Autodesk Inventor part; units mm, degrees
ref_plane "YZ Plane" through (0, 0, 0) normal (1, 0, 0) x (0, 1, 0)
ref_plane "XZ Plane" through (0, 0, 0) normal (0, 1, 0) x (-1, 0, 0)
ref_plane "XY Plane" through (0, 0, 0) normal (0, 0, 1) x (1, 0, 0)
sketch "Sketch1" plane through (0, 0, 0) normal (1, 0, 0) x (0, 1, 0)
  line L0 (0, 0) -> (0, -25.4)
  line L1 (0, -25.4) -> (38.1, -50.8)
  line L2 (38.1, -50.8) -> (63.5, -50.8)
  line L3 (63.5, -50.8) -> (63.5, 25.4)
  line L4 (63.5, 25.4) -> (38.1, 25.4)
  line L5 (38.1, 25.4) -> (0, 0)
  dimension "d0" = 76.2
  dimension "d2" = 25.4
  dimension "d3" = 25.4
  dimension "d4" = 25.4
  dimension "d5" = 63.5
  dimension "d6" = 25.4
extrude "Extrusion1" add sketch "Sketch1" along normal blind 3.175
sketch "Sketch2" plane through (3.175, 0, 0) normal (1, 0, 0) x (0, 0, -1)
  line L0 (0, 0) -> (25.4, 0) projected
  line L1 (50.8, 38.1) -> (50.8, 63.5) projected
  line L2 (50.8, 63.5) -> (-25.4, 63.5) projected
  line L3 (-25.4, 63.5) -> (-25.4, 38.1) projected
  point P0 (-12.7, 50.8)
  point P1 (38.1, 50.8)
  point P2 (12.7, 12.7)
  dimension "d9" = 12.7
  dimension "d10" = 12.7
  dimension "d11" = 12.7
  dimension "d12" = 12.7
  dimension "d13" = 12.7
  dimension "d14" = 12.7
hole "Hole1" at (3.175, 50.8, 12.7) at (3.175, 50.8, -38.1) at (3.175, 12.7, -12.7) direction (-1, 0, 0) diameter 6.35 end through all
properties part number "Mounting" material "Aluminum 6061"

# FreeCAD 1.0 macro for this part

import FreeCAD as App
import Part
import Sketcher
Q = App.Units.Quantity


def add_polygon(sketch, points):
    """Adds a closed chain of lines whose ends are joined by coincident constraints."""
    first, n = sketch.GeometryCount, len(points)
    for a, b in zip(points, points[1:] + points[:1]):
        sketch.addGeometry(Part.LineSegment(App.Vector(*a, 0), App.Vector(*b, 0)), False)
    for i in range(n):
        sketch.addConstraint(Sketcher.Constraint("Coincident", first + i, 2, first + (i + 1) % n, 1))

doc = App.newDocument("Part")
body = doc.addObject("PartDesign::Body", "Body")

# Sketch on YZ plane
sketch1 = body.newObject("Sketcher::SketchObject", "Sketch")
sketch1.AttachmentSupport = (doc.getObject("YZ_Plane"), [""])
sketch1.MapMode = "FlatFace"
add_polygon(sketch1, [(38, 25), (0, 0), (0, -25), (38, -51), (64, -51), (64, 25)])  # lines 0-5
sketch1.addConstraint([
    Sketcher.Constraint("Vertical", 1),
    Sketcher.Constraint("Horizontal", 3),
    Sketcher.Constraint("Vertical", 4),
    Sketcher.Constraint("Horizontal", 5),
    Sketcher.Constraint("Coincident", 0, 2, -1, 1),
    Sketcher.Constraint("Vertical", 2, 2, 5, 2),
    Sketcher.Constraint("Equal", 5, 1),
    Sketcher.Constraint("Equal", 0, 2),
    Sketcher.Constraint("DistanceX", 3, 1, 3, 2, Q("1 in")),
    Sketcher.Constraint("DistanceY", 4, 1, 4, 2, Q("3 in")),
    Sketcher.Constraint("DistanceX", -1, 1, 3, 2, Q("2.5 in")),
])
pad1 = body.newObject("PartDesign::Pad", "Pad")
pad1.Profile = sketch1
pad1.Length = Q("0.125 in")

# Sketch on YZ plane
sketch2 = body.newObject("Sketcher::SketchObject", "Sketch001")
sketch2.AttachmentSupport = (doc.getObject("YZ_Plane"), [""])
sketch2.MapMode = "FlatFace"
sketch2.AttachmentOffset = App.Placement(App.Vector(0, 0, 0.125 * 25.4), App.Rotation())
sketch2.addGeometry([
    Part.Circle(App.Vector(50.8, 12.7, 0), App.Vector(0, 0, 1), 3.2),
    Part.Circle(App.Vector(50.8, -38.1, 0), App.Vector(0, 0, 1), 3.2),
    Part.Circle(App.Vector(12.7, -12.7, 0), App.Vector(0, 0, 1), 3.2),
], False)
sketch2.addConstraint([
    Sketcher.Constraint("Equal", 0, 1),
    Sketcher.Constraint("Equal", 1, 2),
    Sketcher.Constraint("Vertical", 0, 3, 1, 3),
    Sketcher.Constraint("Diameter", 0, Q("0.25 in")),
    Sketcher.Constraint("DistanceX", -1, 1, 0, 3, Q("2 in")),
    Sketcher.Constraint("DistanceY", 1, 3, 0, 3, Q("2 in")),
    Sketcher.Constraint("DistanceY", 2, 3, 0, 3, Q("1 in")),
    Sketcher.Constraint("DistanceY", -1, 1, 0, 3, Q("0.5 in")),
    Sketcher.Constraint("DistanceX", -1, 1, 2, 3, Q("0.5 in")),
])
doc.recompute()
hole = body.newObject("PartDesign::Hole", "Hole")
hole.Profile = sketch2
hole.ThreadType = "None"
hole.Diameter = Q("0.25 in")
hole.DepthType = "ThroughAll"

doc.recompute()
